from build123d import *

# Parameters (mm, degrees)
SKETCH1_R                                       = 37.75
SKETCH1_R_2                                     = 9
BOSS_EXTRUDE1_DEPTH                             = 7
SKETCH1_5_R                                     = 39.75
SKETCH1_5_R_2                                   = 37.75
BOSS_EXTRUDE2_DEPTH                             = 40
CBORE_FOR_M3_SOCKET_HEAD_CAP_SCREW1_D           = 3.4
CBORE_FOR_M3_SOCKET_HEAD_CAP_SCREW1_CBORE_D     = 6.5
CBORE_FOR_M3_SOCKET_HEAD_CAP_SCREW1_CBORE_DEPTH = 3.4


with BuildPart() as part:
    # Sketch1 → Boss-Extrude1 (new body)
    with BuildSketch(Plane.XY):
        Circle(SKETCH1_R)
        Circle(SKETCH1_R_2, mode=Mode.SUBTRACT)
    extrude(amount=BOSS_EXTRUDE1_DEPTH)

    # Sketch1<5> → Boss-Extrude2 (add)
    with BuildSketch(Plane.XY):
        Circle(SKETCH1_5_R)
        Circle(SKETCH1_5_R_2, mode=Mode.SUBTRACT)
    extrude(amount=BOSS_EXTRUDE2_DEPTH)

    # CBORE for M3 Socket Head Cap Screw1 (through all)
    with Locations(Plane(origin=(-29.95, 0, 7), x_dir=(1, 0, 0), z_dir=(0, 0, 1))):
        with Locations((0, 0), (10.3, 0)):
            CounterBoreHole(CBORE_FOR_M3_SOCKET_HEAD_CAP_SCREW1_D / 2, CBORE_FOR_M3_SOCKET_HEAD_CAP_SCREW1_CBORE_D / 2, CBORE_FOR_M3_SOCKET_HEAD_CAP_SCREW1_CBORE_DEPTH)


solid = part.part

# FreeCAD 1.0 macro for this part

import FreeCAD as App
import Part
import Sketcher
Q = App.Units.Quantity

doc = App.newDocument("Part")
params = doc.addObject("Spreadsheet::Sheet", "Params")
for row, (alias, value) in enumerate([
    ("sketch1_diameter", "18 mm"),
    ("sketch1_diameter2", "75.5 mm"),
    ("pad1_length", "7 mm"),
    ("sketch2_diameter", "79.5 mm"),
    ("sketch2_diameter2", "75.5 mm"),
    ("pad2_length", "40 mm"),
    ("sketch3_diameter", "3.4 mm"),
    ("hole_diameter", "3.4 mm"),
    ("hole_cbore_diameter", "6.5 mm"),
    ("hole_cbore_depth", "3.4 mm"),
], start=1):
    params.set(f"A{row}", alias)
    params.set(f"B{row}", "=" + value)
    params.setAlias(f"B{row}", alias)

body = doc.addObject("PartDesign::Body", "Body")

sketch1 = body.newObject("Sketcher::SketchObject", "Sketch")
sketch1.AttachmentSupport = (doc.getObject("XY_Plane"), [""])
sketch1.MapMode = "FlatFace"
sketch1.addGeometry([
    Part.Circle(App.Vector(0, 0, 0), App.Vector(0, 0, 1), 38),
    Part.Circle(App.Vector(0, 0, 0), App.Vector(0, 0, 1), 9),
], False)
sketch1.addConstraint([
    Sketcher.Constraint("Coincident", 0, 3, -1, 1),
    Sketcher.Constraint("Coincident", 1, 3, -1, 1),
    Sketcher.Constraint("Diameter", 1, Q("18 mm")),
    Sketcher.Constraint("Diameter", 0, Q("75.5 mm")),
])
sketch1.setExpression("Constraints[2]", "Params.sketch1_diameter")
sketch1.setExpression("Constraints[3]", "Params.sketch1_diameter2")
pad1 = body.newObject("PartDesign::Pad", "Pad")
pad1.Profile = sketch1
pad1.setExpression("Length", "Params.pad1_length")

sketch2 = body.newObject("Sketcher::SketchObject", "Sketch001")
sketch2.AttachmentSupport = (doc.getObject("XY_Plane"), [""])
sketch2.MapMode = "FlatFace"
sketch2.addGeometry([
    Part.Circle(App.Vector(0, 0, 0), App.Vector(0, 0, 1), 40),
    Part.Circle(App.Vector(0, 0, 0), App.Vector(0, 0, 1), 38),
], False)
sketch2.addConstraint([
    Sketcher.Constraint("Coincident", 0, 3, -1, 1),
    Sketcher.Constraint("Coincident", 1, 3, -1, 1),
    Sketcher.Constraint("Diameter", 0, Q("79.5 mm")),
    Sketcher.Constraint("Diameter", 1, Q("75.5 mm")),
])
sketch2.setExpression("Constraints[2]", "Params.sketch2_diameter")
sketch2.setExpression("Constraints[3]", "Params.sketch2_diameter2")
pad2 = body.newObject("PartDesign::Pad", "Pad001")
pad2.Profile = sketch2
pad2.setExpression("Length", "Params.pad2_length")

sketch3 = body.newObject("Sketcher::SketchObject", "Sketch002")
sketch3.AttachmentSupport = (doc.getObject("XY_Plane"), [""])
sketch3.MapMode = "FlatFace"
sketch3.AttachmentOffset = App.Placement(App.Vector(0, 0, 7), App.Rotation())
sketch3.addGeometry([
    Part.Circle(App.Vector(-29.9, 0, 0), App.Vector(0, 0, 1), 1.7),
    Part.Circle(App.Vector(-19.6, 0, 0), App.Vector(0, 0, 1), 1.7),
], False)
sketch3.addConstraint([
    Sketcher.Constraint("Equal", 0, 1),
    Sketcher.Constraint("PointOnObject", 0, 3, -1),
    Sketcher.Constraint("PointOnObject", 1, 3, -1),
    Sketcher.Constraint("Diameter", 0, Q("3.4 mm")),
    Sketcher.Constraint("DistanceX", 0, 3, 1, 3, Q("10.3 mm")),
    Sketcher.Constraint("DistanceX", 0, 3, -1, 1, Q("29.95 mm")),
])
sketch3.setExpression("Constraints[3]", "Params.sketch3_diameter")
doc.recompute()
hole = body.newObject("PartDesign::Hole", "Hole")
hole.Profile = sketch3
hole.ThreadType = "None"
hole.setExpression("Diameter", "Params.hole_diameter")
hole.DepthType = "ThroughAll"
hole.HoleCutType = "Counterbore"
hole.setExpression("HoleCutDiameter", "Params.hole_cbore_diameter")
hole.setExpression("HoleCutDepth", "Params.hole_cbore_depth")

doc.recompute()
